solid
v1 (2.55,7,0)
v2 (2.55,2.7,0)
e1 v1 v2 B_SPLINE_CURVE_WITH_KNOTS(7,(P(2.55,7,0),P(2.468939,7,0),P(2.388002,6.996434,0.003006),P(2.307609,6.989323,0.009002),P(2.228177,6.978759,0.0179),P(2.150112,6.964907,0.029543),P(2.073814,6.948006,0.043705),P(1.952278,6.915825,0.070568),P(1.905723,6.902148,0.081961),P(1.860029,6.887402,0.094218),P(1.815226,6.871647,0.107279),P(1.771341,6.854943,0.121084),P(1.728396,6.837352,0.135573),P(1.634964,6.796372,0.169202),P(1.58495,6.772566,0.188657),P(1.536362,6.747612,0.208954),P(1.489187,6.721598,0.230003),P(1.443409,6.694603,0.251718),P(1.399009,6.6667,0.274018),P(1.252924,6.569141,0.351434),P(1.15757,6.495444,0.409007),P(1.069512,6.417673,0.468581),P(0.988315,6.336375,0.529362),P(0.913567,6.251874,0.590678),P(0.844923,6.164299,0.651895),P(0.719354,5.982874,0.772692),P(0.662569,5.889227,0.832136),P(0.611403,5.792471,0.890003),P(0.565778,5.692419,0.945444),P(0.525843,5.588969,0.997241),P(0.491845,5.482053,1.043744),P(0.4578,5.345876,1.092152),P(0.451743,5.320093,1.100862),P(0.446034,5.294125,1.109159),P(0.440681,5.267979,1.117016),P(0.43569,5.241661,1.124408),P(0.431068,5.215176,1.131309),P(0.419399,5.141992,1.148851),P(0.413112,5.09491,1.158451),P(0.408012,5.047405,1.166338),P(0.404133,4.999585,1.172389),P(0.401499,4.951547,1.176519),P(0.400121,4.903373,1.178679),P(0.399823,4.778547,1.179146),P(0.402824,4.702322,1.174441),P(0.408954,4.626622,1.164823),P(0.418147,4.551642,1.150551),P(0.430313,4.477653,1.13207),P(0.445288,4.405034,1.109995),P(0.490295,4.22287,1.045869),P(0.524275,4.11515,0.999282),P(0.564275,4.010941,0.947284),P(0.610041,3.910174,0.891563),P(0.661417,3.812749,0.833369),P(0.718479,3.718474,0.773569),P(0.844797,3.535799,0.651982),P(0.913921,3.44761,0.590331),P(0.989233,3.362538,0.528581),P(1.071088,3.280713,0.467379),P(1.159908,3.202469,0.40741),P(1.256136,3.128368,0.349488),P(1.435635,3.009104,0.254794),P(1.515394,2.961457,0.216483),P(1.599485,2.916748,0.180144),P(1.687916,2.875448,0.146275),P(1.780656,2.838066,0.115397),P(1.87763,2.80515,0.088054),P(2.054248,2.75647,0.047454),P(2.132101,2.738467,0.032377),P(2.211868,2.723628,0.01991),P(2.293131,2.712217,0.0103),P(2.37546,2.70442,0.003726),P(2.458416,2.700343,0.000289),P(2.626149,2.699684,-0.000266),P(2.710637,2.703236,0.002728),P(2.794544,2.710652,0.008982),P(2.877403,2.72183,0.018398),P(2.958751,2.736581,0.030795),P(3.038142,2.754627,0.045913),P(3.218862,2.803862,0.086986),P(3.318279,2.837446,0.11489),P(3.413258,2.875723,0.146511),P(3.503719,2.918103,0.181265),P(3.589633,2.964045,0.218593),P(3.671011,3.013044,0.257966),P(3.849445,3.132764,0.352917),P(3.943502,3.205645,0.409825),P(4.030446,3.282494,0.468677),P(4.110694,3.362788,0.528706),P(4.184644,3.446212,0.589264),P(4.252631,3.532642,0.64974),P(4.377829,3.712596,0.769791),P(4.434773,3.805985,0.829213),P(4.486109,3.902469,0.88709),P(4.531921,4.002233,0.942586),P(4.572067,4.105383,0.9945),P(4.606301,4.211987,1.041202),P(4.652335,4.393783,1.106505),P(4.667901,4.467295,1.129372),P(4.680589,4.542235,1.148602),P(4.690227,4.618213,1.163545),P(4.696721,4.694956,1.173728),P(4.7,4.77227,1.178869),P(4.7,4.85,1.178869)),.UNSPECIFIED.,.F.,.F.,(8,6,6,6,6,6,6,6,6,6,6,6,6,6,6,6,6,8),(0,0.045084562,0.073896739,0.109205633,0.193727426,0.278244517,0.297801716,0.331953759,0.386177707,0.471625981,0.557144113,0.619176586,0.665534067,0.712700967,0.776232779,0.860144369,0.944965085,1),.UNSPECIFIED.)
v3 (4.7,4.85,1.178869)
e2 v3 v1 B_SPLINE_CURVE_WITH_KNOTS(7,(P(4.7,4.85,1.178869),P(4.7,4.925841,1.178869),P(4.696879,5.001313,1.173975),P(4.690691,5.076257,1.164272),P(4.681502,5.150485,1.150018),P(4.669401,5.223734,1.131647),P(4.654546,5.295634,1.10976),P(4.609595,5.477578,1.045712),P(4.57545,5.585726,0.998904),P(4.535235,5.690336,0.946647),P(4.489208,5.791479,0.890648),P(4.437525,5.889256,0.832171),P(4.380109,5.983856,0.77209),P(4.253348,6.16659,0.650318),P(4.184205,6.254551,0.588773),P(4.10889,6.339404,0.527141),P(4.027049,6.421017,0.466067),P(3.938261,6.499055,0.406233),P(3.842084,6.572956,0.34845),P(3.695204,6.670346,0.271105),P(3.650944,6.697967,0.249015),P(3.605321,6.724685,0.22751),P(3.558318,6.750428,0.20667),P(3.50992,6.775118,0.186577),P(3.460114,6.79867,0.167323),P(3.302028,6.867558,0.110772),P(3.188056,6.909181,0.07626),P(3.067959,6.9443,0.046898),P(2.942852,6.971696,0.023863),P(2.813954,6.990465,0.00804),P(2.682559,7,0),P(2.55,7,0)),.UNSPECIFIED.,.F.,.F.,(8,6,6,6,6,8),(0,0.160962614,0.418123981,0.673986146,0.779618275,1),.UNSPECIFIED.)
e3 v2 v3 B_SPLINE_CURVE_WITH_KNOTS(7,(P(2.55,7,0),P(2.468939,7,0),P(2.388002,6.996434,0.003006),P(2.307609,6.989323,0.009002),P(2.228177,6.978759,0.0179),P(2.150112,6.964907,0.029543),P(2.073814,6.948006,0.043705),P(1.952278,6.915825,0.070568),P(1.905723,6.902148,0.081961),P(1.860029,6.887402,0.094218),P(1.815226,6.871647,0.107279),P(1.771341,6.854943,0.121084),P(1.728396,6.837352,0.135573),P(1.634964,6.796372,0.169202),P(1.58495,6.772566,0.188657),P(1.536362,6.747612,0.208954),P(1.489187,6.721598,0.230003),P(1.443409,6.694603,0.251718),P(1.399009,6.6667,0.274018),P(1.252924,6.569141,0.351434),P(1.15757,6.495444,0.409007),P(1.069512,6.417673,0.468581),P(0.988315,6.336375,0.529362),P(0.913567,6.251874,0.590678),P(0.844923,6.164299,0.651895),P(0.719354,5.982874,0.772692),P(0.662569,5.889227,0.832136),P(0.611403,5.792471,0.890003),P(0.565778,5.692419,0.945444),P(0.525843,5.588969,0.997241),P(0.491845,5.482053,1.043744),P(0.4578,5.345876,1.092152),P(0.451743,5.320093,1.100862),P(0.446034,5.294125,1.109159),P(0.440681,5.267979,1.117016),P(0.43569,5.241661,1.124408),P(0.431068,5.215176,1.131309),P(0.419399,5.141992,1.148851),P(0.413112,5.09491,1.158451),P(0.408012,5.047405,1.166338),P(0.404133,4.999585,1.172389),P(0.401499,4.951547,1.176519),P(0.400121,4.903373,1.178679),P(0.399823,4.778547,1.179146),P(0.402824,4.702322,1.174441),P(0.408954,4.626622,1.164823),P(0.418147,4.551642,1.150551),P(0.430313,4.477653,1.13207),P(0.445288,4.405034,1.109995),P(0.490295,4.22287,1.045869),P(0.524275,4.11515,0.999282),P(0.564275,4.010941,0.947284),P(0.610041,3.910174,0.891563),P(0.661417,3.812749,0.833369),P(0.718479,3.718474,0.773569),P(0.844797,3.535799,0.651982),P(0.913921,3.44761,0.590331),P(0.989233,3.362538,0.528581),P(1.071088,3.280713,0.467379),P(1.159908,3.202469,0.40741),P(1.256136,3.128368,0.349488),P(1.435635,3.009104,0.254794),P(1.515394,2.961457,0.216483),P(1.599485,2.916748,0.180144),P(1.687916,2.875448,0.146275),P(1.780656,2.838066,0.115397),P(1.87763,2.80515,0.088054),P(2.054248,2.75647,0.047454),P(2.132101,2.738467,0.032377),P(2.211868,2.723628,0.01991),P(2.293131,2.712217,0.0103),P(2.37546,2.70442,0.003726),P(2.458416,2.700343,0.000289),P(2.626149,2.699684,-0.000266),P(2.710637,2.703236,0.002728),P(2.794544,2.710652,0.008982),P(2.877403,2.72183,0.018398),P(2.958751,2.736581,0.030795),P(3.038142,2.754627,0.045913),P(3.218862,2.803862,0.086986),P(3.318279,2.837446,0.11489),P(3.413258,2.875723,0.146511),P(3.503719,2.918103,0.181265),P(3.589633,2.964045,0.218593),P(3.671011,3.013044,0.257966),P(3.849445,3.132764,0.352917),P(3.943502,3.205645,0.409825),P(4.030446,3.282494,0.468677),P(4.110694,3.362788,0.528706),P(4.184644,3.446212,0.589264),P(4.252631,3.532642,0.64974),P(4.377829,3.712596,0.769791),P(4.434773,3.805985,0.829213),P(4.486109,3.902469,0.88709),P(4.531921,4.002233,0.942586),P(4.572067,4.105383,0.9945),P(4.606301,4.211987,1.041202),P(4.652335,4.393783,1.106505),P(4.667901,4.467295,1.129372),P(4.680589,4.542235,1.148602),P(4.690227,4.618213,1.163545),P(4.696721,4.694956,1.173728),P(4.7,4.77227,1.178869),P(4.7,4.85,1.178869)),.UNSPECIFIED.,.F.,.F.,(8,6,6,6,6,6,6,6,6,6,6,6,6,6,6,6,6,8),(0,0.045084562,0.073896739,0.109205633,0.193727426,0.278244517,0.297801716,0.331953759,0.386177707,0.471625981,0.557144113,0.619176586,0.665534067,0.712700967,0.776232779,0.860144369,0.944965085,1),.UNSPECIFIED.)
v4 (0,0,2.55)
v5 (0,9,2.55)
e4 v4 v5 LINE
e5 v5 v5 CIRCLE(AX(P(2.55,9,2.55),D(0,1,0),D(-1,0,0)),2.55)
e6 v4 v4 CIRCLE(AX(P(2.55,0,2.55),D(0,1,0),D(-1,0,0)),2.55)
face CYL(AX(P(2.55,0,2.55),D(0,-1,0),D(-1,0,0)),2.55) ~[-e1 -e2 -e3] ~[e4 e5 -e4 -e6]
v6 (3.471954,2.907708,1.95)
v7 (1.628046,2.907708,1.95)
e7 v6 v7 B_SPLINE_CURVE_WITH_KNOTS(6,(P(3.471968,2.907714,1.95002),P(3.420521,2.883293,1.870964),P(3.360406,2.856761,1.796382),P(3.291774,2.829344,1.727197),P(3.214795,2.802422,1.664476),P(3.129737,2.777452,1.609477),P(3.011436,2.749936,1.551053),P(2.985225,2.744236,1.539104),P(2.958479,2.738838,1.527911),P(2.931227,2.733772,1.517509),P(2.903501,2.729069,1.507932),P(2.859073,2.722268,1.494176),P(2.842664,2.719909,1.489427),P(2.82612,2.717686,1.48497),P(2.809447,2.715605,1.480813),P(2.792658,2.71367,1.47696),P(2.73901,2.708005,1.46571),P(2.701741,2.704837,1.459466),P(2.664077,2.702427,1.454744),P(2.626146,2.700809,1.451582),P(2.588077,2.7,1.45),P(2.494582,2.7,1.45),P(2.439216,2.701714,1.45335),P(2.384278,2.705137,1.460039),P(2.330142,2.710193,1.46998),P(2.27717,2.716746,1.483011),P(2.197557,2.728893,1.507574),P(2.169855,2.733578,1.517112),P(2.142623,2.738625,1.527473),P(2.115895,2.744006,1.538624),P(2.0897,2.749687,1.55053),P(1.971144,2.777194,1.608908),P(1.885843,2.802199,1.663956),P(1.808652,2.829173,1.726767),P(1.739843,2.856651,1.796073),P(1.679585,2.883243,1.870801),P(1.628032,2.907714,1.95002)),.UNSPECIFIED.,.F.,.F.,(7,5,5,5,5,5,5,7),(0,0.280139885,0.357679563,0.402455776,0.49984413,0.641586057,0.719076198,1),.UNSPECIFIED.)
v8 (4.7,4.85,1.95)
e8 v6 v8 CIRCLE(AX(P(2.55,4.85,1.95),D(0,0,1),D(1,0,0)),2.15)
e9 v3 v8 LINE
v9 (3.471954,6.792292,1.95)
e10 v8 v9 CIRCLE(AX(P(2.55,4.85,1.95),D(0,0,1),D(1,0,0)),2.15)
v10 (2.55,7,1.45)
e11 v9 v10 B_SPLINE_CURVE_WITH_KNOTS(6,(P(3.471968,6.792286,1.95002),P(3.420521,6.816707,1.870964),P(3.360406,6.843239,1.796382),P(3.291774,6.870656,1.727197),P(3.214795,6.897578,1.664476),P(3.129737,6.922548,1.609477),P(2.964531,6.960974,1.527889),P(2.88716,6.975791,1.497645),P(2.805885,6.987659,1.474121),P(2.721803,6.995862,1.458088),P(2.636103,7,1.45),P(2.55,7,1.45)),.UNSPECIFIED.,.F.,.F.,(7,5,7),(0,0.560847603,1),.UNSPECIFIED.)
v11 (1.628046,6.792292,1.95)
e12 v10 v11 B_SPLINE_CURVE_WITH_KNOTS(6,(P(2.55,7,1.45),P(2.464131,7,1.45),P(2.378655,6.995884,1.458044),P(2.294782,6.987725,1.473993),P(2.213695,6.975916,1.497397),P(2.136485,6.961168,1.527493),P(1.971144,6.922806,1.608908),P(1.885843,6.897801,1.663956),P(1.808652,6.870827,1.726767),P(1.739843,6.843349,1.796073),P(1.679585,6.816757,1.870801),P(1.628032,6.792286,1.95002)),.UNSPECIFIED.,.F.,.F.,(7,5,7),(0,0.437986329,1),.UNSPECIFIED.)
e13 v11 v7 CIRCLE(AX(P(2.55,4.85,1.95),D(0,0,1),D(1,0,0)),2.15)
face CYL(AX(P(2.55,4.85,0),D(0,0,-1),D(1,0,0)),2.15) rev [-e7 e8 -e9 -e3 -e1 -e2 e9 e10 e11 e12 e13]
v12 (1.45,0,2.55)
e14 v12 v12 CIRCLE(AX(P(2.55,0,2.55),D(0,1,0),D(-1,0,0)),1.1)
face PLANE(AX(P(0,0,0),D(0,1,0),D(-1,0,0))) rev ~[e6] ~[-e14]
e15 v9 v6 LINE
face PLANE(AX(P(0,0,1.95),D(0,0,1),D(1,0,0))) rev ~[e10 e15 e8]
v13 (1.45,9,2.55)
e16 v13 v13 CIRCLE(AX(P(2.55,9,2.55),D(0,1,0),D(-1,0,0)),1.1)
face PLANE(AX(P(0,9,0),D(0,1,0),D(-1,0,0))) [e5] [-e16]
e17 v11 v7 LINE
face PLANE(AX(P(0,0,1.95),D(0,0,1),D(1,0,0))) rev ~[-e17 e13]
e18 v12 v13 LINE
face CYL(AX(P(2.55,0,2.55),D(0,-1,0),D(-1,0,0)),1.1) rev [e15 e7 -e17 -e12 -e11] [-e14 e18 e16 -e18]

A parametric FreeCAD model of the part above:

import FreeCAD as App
import Part
import Sketcher
from FreeCAD import Vector
Q = App.Units.Quantity

doc = App.newDocument("Part")
body = doc.addObject("PartDesign::Body", "Body")

# Sketch on XZ plane
sketch1 = doc.addObject("Sketcher::SketchObject", "Sketch")
body.addObject(sketch1)
sketch1.AttachmentSupport = (doc.XZ_Plane, [""])
sketch1.MapMode = "FlatFace"
sketch1.addGeometry([
    Part.Circle(Vector(2.5, 2.5, 0), Vector(0, 0, 1), 2.5),
    Part.Circle(Vector(2.5, 2.5, 0), Vector(0, 0, 1), 1.1),
], False)
sketch1.addConstraint([
    Sketcher.Constraint("Coincident", 1, 3, 0, 3),
    Sketcher.Constraint("Diameter", 0, Q("5.1 mm")),
    Sketcher.Constraint("Diameter", 1, Q("2.2 mm")),
    Sketcher.Constraint("DistanceX", -1, 1, 0, 3, Q("2.55 mm")),
    Sketcher.Constraint("DistanceY", -1, 1, 0, 3, Q("2.55 mm")),
])
pad1 = doc.addObject("PartDesign::Pad", "Pad")
body.addObject(pad1)
pad1.Profile = sketch1
pad1.Length = 9
pad1.Reversed = True

# Sketch on XY plane
sketch2 = doc.addObject("Sketcher::SketchObject", "Sketch001")
body.addObject(sketch2)
sketch2.AttachmentSupport = (doc.XY_Plane, [""])
sketch2.MapMode = "FlatFace"
sketch2.addGeometry(Part.Circle(Vector(2.5, 4.8, 0), Vector(0, 0, 1), 2.1), False)
sketch2.addConstraint([
    Sketcher.Constraint("Diameter", 0, Q("4.3 mm")),
    Sketcher.Constraint("DistanceX", -1, 1, 0, 3, Q("2.55 mm")),
    Sketcher.Constraint("DistanceY", -1, 1, 0, 3, Q("4.85 mm")),
])
pocket1 = doc.addObject("PartDesign::Pocket", "Pocket")
body.addObject(pocket1)
pocket1.Profile = sketch2
pocket1.Length = 1.95
pocket1.Reversed = True

doc.recompute()
